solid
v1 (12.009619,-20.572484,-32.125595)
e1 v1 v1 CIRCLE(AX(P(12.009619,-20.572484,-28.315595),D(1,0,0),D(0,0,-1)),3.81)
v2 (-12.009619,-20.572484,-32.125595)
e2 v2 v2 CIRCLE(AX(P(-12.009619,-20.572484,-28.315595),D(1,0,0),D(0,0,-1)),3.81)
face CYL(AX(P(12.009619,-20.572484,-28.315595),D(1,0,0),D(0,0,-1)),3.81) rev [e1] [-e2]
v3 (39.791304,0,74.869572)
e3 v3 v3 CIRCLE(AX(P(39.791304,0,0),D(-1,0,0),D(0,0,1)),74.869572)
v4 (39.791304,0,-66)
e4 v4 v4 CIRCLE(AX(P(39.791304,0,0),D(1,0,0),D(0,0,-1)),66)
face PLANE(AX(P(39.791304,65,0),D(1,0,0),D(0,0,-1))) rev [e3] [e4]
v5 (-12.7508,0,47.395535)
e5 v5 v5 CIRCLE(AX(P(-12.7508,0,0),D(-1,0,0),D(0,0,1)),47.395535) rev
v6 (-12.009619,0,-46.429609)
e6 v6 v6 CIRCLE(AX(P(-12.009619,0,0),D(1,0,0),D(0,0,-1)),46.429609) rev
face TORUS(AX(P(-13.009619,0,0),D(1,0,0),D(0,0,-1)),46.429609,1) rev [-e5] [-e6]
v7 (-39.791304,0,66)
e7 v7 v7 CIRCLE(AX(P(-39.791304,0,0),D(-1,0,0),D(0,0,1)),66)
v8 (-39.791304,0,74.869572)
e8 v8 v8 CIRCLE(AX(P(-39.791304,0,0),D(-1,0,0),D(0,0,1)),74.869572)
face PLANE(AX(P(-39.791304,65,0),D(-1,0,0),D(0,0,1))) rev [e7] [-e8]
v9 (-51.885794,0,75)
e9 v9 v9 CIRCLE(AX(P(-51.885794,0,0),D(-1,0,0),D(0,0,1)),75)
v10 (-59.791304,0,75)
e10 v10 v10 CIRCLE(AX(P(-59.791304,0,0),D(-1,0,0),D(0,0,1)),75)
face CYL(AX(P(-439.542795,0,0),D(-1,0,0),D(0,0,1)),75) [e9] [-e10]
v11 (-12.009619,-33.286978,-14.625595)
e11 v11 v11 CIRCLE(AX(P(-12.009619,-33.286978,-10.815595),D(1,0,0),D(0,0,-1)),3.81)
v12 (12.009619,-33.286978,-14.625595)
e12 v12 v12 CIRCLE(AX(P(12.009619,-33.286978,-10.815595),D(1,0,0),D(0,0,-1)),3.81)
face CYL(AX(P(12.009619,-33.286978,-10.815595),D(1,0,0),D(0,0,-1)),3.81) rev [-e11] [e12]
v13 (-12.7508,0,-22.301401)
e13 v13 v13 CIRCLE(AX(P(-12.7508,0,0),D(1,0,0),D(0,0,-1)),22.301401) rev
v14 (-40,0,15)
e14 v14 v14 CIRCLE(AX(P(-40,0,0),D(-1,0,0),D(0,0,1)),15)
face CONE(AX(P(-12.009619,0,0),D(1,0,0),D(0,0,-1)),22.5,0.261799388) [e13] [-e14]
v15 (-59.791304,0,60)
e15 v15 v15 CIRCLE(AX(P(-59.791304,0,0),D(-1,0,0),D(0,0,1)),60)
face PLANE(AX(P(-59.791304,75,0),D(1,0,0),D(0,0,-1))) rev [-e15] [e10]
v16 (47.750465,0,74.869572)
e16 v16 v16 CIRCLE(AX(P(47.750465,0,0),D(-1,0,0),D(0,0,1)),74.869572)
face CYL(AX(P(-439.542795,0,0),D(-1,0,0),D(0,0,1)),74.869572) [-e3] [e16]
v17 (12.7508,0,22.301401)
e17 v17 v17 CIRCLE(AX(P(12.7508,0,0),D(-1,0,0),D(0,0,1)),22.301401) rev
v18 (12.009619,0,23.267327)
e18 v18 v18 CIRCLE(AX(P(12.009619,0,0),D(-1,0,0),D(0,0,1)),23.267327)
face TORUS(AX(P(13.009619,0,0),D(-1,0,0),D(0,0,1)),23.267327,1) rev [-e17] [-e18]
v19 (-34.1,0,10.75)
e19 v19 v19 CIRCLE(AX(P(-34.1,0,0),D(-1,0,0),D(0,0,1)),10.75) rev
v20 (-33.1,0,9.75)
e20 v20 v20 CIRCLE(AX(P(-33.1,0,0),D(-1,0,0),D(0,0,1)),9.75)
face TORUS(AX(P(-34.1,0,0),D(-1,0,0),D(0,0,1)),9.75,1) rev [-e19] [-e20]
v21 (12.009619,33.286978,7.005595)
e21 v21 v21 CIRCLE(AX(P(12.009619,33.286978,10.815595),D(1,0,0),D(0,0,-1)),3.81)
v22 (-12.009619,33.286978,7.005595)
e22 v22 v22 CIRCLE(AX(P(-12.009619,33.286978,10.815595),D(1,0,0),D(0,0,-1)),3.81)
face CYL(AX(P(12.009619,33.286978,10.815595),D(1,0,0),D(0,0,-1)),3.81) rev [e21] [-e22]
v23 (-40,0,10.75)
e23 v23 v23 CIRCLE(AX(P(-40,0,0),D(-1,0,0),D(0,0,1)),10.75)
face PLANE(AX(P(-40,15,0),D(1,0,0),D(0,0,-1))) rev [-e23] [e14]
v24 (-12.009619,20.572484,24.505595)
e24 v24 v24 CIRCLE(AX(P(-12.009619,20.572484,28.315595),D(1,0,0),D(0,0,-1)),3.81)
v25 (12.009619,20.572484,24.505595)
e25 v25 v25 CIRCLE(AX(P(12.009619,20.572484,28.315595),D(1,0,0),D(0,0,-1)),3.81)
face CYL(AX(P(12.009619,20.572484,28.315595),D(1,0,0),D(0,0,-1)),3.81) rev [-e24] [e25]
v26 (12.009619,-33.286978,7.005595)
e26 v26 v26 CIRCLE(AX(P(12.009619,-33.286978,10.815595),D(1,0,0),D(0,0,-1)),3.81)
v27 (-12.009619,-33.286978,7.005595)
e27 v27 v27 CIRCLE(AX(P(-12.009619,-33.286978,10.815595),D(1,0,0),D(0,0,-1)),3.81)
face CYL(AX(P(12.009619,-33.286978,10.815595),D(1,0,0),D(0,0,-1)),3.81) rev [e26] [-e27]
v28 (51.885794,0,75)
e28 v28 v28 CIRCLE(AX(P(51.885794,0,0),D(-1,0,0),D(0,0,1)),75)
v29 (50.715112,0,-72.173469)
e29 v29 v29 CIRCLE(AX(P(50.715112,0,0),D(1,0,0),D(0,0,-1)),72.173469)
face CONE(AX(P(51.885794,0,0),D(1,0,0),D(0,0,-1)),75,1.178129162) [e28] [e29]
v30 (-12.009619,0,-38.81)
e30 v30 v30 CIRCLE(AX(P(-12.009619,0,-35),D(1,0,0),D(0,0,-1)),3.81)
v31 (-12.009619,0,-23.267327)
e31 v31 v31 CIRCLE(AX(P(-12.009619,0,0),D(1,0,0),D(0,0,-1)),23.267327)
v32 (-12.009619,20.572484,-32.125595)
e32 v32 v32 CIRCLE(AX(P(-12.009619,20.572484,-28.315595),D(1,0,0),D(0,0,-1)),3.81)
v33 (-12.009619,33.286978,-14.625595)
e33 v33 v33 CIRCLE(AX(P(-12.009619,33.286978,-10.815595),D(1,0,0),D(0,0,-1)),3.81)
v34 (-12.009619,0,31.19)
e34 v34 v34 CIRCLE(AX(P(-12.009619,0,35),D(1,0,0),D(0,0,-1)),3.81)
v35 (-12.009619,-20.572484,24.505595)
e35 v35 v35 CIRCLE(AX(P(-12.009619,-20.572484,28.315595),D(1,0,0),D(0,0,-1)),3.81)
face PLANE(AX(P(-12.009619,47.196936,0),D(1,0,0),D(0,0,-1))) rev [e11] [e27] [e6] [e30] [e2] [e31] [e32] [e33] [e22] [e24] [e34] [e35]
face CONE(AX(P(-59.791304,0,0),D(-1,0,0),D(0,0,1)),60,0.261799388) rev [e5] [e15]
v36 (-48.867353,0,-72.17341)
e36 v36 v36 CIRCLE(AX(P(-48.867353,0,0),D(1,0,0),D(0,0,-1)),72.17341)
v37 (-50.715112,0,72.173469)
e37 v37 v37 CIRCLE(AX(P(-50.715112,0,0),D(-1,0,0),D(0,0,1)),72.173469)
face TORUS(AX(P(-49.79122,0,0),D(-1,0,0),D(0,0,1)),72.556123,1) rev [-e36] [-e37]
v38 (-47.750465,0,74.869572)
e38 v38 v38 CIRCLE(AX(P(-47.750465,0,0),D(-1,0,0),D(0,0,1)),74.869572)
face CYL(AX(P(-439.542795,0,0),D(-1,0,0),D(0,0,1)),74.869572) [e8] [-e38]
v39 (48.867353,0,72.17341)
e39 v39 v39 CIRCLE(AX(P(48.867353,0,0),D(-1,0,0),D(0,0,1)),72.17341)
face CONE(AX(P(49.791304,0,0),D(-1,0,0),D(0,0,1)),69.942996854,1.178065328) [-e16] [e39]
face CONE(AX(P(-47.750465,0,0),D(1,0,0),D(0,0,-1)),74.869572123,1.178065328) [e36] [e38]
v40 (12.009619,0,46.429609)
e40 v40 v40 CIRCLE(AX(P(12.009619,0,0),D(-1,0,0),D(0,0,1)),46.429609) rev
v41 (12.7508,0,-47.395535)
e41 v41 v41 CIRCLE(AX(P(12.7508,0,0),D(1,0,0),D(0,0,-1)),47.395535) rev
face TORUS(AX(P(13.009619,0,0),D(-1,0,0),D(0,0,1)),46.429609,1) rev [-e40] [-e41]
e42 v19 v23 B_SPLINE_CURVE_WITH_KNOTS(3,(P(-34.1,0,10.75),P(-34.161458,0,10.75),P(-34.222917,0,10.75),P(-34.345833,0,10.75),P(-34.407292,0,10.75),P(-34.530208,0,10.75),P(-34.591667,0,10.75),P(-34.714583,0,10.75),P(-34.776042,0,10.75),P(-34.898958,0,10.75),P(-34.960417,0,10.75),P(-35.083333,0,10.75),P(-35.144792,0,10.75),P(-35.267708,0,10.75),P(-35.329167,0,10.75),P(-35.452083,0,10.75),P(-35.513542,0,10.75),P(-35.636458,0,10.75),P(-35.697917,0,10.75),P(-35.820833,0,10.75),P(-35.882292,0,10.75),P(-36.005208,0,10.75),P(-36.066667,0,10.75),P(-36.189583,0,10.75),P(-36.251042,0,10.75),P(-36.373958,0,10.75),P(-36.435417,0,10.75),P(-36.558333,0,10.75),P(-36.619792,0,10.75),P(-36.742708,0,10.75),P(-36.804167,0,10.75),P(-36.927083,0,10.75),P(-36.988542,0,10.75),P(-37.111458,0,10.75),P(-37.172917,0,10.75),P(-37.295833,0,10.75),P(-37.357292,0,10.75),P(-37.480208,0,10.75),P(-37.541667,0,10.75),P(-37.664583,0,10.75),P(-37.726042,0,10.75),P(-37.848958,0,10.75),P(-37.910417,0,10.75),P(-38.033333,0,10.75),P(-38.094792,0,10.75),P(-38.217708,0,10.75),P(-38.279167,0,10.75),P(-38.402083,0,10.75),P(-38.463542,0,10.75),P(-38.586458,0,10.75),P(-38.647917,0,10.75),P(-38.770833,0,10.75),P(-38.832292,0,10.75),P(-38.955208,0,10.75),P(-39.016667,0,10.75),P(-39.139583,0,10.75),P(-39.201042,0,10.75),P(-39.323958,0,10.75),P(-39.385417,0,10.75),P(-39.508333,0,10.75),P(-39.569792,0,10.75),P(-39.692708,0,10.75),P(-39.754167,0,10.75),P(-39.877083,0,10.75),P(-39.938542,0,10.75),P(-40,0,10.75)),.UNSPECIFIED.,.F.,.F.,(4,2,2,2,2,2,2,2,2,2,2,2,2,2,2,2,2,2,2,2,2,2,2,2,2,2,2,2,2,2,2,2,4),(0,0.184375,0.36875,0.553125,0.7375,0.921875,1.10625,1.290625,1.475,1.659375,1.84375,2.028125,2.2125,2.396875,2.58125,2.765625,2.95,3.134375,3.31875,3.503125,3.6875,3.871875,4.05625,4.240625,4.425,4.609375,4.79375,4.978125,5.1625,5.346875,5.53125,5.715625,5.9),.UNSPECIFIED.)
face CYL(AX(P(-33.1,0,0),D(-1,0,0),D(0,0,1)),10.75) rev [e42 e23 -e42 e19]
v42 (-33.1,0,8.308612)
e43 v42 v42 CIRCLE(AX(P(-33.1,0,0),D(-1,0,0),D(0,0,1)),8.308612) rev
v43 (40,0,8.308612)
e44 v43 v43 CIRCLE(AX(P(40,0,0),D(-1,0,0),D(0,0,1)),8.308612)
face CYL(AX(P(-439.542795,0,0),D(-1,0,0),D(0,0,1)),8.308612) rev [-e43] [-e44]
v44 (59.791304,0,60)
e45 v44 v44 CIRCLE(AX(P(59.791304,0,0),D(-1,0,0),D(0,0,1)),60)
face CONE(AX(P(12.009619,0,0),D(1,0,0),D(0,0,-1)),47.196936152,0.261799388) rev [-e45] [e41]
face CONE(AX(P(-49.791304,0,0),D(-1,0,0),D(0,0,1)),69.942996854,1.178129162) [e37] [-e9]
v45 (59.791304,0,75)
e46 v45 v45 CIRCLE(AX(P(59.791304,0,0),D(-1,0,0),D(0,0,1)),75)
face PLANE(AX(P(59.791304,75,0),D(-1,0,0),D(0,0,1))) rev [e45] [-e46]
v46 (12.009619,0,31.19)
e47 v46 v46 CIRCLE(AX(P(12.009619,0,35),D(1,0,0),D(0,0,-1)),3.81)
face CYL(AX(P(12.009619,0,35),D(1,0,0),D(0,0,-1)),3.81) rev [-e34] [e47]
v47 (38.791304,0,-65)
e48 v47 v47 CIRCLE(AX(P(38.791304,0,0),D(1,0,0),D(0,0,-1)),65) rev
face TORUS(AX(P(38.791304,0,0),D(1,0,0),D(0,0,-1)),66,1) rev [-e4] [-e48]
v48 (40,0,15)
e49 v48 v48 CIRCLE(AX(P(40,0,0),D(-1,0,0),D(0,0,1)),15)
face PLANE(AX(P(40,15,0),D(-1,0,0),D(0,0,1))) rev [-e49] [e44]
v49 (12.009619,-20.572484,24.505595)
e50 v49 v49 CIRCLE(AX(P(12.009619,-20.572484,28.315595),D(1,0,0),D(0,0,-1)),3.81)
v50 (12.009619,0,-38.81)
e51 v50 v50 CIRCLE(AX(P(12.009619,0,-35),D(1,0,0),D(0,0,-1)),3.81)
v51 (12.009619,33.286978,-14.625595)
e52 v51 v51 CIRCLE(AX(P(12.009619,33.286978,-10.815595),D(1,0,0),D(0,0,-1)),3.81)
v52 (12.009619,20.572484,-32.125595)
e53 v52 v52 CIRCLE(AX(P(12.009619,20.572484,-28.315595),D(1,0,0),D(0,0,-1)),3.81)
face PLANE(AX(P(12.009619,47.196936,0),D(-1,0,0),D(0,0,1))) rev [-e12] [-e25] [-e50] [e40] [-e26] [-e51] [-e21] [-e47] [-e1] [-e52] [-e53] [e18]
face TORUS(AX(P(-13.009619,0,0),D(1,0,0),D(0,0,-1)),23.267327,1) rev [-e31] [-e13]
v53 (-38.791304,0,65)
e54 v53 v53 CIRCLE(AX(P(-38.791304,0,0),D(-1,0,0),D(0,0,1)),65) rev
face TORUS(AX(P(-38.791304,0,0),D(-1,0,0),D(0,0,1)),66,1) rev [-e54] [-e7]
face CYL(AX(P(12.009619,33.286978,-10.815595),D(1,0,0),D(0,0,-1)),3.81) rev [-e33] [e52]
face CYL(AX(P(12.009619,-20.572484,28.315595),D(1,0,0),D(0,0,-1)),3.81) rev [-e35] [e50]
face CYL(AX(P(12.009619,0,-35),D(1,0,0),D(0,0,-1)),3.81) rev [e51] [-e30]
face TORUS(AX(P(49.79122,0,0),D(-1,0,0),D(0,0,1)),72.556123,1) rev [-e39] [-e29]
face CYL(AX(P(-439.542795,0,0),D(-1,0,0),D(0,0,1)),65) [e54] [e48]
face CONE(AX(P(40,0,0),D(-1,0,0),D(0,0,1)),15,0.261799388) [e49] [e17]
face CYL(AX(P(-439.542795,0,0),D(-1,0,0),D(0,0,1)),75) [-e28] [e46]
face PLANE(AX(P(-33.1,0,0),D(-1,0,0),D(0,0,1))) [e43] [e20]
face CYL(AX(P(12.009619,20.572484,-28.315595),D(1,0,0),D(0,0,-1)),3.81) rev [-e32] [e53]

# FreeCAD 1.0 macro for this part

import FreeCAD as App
import Part
import Sketcher
from FreeCAD import Vector
Q = App.Units.Quantity


def edges_at(feature, points):
    """Names of the edges that pass closest to the given points."""
    edges = feature.Shape.Edges
    near = lambda p: min(range(len(edges)), key=lambda i: edges[i].distToShape(Part.Vertex(*p))[0])
    return sorted({f"Edge{near(p) + 1}" for p in points})


def add_polygon(sketch, points):
    """Adds a closed chain of lines whose ends are joined by coincident constraints."""
    first, n = sketch.GeometryCount, len(points)
    for a, b in zip(points, points[1:] + points[:1]):
        sketch.addGeometry(Part.LineSegment(App.Vector(*a, 0), App.Vector(*b, 0)), False)
    for i in range(n):
        sketch.addConstraint(Sketcher.Constraint("Coincident", first + i, 2, first + (i + 1) % n, 1))

doc = App.newDocument("Part")
body = doc.addObject("PartDesign::Body", "Body")

sketch1 = doc.addObject("Sketcher::SketchObject", "Sketch")
body.addObject(sketch1)
sketch1.AttachmentSupport = (doc.XY_Plane, [""])
sketch1.MapMode = "FlatFace"
add_polygon(sketch1, [(40, 65), (-40, 65), (-40, 75), (-48, 75), (-50, 70), (-52, 75), (-60, 75), (-60, 60), (-12, 47), (-12, 22), (-40, 15), (-40, 8), (40, 8), (40, 15), (12, 22), (12, 47), (60, 60), (60, 75), (52, 75), (50, 70), (48, 75), (40, 75)])
sketch1.addConstraint(Sketcher.Constraint("Horizontal", 0))
sketch1.addConstraint(Sketcher.Constraint("Vertical", 1))
sketch1.addConstraint(Sketcher.Constraint("Horizontal", 2))
sketch1.addConstraint(Sketcher.Constraint("Horizontal", 5))
sketch1.addConstraint(Sketcher.Constraint("Vertical", 6))
sketch1.addConstraint(Sketcher.Constraint("Vertical", 8))
sketch1.addConstraint(Sketcher.Constraint("Vertical", 10))
sketch1.addConstraint(Sketcher.Constraint("Horizontal", 11))
sketch1.addConstraint(Sketcher.Constraint("Vertical", 12))
sketch1.addConstraint(Sketcher.Constraint("Vertical", 14))
sketch1.addConstraint(Sketcher.Constraint("Vertical", 16))
sketch1.addConstraint(Sketcher.Constraint("Horizontal", 17))
sketch1.addConstraint(Sketcher.Constraint("Horizontal", 20))
sketch1.addConstraint(Sketcher.Constraint("Vertical", 21))
sketch1.addConstraint(Sketcher.Constraint("Symmetric", 9, 2, 12, 2, -2))
sketch1.addConstraint(Sketcher.Constraint("Symmetric", 8, 2, 13, 2, -2))
sketch1.addConstraint(Sketcher.Constraint("Symmetric", 6, 2, 15, 2, -2))
sketch1.addConstraint(Sketcher.Constraint("Symmetric", 4, 2, 17, 2, -2))
sketch1.addConstraint(Sketcher.Constraint("Symmetric", 3, 2, 18, 2, -2))
sketch1.addConstraint(Sketcher.Constraint("Symmetric", 2, 2, 19, 2, -2))
sketch1.addConstraint(Sketcher.Constraint("Parallel", 7, 13))
sketch1.addConstraint(Sketcher.Constraint("Parallel", 9, 15))
sketch1.addConstraint(Sketcher.Constraint("Equal", 2, 20))
sketch1.addConstraint(Sketcher.Constraint("DistanceX", 11, 1, 11, 2, 80.0))
sketch1.addConstraint(Sketcher.Constraint("DistanceY", 6, 2, 6, 1, 15.0))
sketch1.addConstraint(Sketcher.Constraint("Angle", 7, Q("-15 deg")))
sketch1.addConstraint(Sketcher.Constraint("DistanceY", -1, 1, 0, 2, 65.0))
sketch1.addConstraint(Sketcher.Constraint("DistanceY", -1, 1, 4, 2, 75.0))
sketch1.addConstraint(Sketcher.Constraint("DistanceY", -1, 1, 9, 2, 15.0))
sketch1.addConstraint(Sketcher.Constraint("DistanceX", 3, 2, 1, 2, 10.0))
sketch1.addConstraint(Sketcher.Constraint("DistanceX", 5, 2, 3, 2, 10.0))
sketch1.addConstraint(Sketcher.Constraint("DistanceY", -1, 1, 8, 2, 22.5))
sketch1.addConstraint(Sketcher.Constraint("DistanceX", 2, 2, 2, 1, 7.959161))
sketch1.addConstraint(Sketcher.Constraint("DistanceX", 5, 2, 5, 1, 7.90551))
sketch1.addConstraint(Sketcher.Constraint("Distance", 4, 5.473588))
sketch1.addConstraint(Sketcher.Constraint("Distance", 7, 49.46724))
sketch1.addConstraint(Sketcher.Constraint("DistanceY", 1, 1, 1, 2, 9.869572))
sketch1.addConstraint(Sketcher.Constraint("DistanceY", 10, 2, 10, 1, 6.691388))
revolution = doc.addObject("PartDesign::Revolution", "Revolution")
body.addObject(revolution)
revolution.Profile = sketch1
revolution.ReferenceAxis = (sketch1, ["H_Axis"])
revolution.Angle = 360

sketch2 = doc.addObject("Sketcher::SketchObject", "Sketch001")
body.addObject(sketch2)
sketch2.AttachmentSupport = (doc.YZ_Plane, [""])
sketch2.MapMode = "FlatFace"
sketch2.AttachmentOffset = App.Placement(Vector(0, 0, 12.009619), App.Rotation())
sketch2.addGeometry(Part.Circle(Vector(0, -35, 0), Vector(0, 0, 1), 3.8), False)
sketch2.addConstraint(Sketcher.Constraint("PointOnObject", 0, 3, -2))
sketch2.addConstraint(Sketcher.Constraint("Diameter", 0, 7.62))
sketch2.addConstraint(Sketcher.Constraint("DistanceY", 0, 3, -1, 1, 35.0))
doc.recompute()
hole = doc.addObject("PartDesign::Hole", "Hole")
body.addObject(hole)
hole.Profile = sketch2
hole.ThreadType = "None"
hole.Diameter = 7.62
hole.DepthType = "ThroughAll"
doc.recompute()

polarpattern = doc.addObject("PartDesign::PolarPattern", "PolarPattern")
body.addObject(polarpattern)
polarpattern.Originals = [hole]
polarpattern.Axis = (doc.X_Axis, [""])
polarpattern.Angle = 360
polarpattern.Occurrences = 10
body.Tip = polarpattern

sketch3 = doc.addObject("Sketcher::SketchObject", "Sketch002")
body.addObject(sketch3)
sketch3.AttachmentSupport = (doc.YZ_Plane, [""])
sketch3.MapMode = "FlatFace"
sketch3.AttachmentOffset = App.Placement(Vector(0, 0, -40), App.Rotation())
sketch3.addGeometry(Part.Circle(Vector(0, 0, 0), Vector(0, 0, 1), 11), False)
sketch3.addConstraint(Sketcher.Constraint("Coincident", 0, 3, -1, 1))
sketch3.addConstraint(Sketcher.Constraint("Diameter", 0, 21.5))
pocket1 = doc.addObject("PartDesign::Pocket", "Pocket")
body.addObject(pocket1)
pocket1.Profile = sketch3
pocket1.Length = 6.9
pocket1.Reversed = True
doc.recompute()

fillet = doc.addObject("PartDesign::Fillet", "Fillet")
body.addObject(fillet)
fillet.Base = (pocket1, edges_at(pocket1, [(-33.1, 0, -10.75), (-12.01, 0, -22.5), (-12.01, 0, -47.197)]))
fillet.Radius = 1
doc.recompute()

fillet2 = doc.addObject("PartDesign::Fillet", "Fillet001")
body.addObject(fillet2)
fillet2.Base = (fillet, edges_at(fillet, [
    (39.791, 0, -65),
    (49.791, 0, -69.943),
    (-49.791, 0, -69.943),
    (-39.791, 0, -65),
]))
fillet2.Radius = 1
doc.recompute()

fillet3 = doc.addObject("PartDesign::Fillet", "Fillet002")
body.addObject(fillet3)
fillet3.Base = (fillet2, edges_at(fillet2, [(12.01, 0, -47.197), (12.01, 0, -22.5)]))
fillet3.Radius = 1

doc.recompute()
